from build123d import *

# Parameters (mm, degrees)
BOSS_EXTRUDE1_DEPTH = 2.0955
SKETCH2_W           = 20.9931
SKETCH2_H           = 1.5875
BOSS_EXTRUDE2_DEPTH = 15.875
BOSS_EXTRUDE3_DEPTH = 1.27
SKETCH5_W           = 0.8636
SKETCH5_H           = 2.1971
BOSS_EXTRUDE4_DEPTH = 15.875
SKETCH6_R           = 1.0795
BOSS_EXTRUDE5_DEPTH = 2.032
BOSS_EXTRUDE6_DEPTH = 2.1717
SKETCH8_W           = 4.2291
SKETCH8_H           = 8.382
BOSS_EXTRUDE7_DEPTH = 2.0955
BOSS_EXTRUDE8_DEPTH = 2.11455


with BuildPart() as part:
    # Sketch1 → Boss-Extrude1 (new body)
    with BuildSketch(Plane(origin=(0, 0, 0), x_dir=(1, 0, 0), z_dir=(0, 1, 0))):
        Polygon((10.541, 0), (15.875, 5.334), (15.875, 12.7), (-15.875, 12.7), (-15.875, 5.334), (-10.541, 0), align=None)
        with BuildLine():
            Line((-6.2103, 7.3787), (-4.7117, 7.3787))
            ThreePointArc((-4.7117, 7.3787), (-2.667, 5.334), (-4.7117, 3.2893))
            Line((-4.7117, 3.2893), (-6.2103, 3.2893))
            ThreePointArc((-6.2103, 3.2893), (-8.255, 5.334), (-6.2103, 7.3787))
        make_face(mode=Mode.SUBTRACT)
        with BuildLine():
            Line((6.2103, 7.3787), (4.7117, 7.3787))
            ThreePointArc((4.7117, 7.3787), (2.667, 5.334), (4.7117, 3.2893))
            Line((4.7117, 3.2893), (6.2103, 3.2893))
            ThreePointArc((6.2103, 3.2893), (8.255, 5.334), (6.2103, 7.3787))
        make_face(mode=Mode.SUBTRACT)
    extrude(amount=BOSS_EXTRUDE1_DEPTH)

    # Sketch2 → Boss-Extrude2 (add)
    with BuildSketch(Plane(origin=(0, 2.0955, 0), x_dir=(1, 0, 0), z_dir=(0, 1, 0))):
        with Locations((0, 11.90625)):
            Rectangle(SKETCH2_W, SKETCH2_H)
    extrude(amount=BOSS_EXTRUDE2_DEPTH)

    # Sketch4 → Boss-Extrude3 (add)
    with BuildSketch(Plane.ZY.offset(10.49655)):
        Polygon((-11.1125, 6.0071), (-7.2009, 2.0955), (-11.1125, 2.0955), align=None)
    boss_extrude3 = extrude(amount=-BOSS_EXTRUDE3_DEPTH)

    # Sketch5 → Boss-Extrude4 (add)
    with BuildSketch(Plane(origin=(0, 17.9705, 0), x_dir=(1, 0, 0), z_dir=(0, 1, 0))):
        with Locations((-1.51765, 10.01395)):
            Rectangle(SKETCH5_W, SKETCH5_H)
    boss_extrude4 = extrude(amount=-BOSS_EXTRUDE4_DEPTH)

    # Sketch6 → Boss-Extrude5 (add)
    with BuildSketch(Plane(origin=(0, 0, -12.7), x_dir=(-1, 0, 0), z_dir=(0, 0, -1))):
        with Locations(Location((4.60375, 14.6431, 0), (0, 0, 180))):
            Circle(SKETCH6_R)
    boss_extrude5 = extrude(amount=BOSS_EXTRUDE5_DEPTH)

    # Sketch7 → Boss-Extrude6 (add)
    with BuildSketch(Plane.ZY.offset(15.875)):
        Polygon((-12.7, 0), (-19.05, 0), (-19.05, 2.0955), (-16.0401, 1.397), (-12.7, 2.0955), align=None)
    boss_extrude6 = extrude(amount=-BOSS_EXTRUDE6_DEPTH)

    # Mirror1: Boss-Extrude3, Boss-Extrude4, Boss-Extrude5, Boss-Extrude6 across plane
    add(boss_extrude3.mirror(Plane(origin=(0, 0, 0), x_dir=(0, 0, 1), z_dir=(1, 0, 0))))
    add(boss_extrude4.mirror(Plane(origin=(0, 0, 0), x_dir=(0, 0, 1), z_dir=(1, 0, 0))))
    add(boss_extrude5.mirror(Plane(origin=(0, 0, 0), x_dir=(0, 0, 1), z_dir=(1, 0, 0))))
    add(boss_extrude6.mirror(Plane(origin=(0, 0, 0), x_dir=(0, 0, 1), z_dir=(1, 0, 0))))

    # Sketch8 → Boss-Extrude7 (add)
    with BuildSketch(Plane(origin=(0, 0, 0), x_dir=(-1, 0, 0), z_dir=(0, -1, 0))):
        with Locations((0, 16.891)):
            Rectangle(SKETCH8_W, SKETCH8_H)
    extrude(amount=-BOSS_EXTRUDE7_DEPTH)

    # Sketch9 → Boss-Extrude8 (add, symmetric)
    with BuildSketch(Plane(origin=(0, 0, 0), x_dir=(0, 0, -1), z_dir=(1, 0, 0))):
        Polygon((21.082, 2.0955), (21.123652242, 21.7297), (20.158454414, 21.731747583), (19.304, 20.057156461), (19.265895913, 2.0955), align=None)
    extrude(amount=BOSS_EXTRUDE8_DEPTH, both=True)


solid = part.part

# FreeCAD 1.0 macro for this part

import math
import FreeCAD as App
import Part
import Sketcher

V = App.Vector
Q = App.Units.Quantity

doc = App.newDocument("Part")
body = doc.addObject("PartDesign::Body", "Body")

# Sketch on XZ plane
sketch1 = body.newObject("Sketcher::SketchObject", "Sketch")
sketch1.AttachmentSupport = (doc.getObject("XZ_Plane"), [""])
sketch1.MapMode = "FlatFace"
sketch1.addGeometry(Part.LineSegment(V(10.5, 0, 0), V(15.9, -5.3, 0)), False)
sketch1.addGeometry(Part.LineSegment(V(15.9, -5.3, 0), V(15.9, -12.7, 0)), False)
sketch1.addGeometry(Part.LineSegment(V(15.9, -12.7, 0), V(-15.9, -12.7, 0)), False)
sketch1.addGeometry(Part.LineSegment(V(-15.9, -12.7, 0), V(-15.9, -5.3, 0)), False)
sketch1.addGeometry(Part.LineSegment(V(-15.9, -5.3, 0), V(-10.5, 0, 0)), False)
sketch1.addGeometry(Part.LineSegment(V(-10.5, 0, 0), V(10.5, 0, 0)), False)
sketch1.addGeometry(Part.ArcOfCircle(Part.Circle(V(-6.2, -5.3, 0), V(0, 0, 1), 2), math.radians(90), math.radians(270)), False)
sketch1.addGeometry(Part.LineSegment(V(-6.2, -7.4, 0), V(-4.7, -7.4, 0)), False)
sketch1.addGeometry(Part.ArcOfCircle(Part.Circle(V(-4.7, -5.3, 0), V(0, 0, 1), 2), math.radians(-90), math.radians(90)), False)
sketch1.addGeometry(Part.LineSegment(V(-4.7, -3.3, 0), V(-6.2, -3.3, 0)), False)
sketch1.addGeometry(Part.LineSegment(V(4.7, -7.4, 0), V(6.2, -7.4, 0)), False)
sketch1.addGeometry(Part.ArcOfCircle(Part.Circle(V(6.2, -5.3, 0), V(0, 0, 1), 2), math.radians(-90), math.radians(90)), False)
sketch1.addGeometry(Part.LineSegment(V(6.2, -3.3, 0), V(4.7, -3.3, 0)), False)
sketch1.addGeometry(Part.ArcOfCircle(Part.Circle(V(4.7, -5.3, 0), V(0, 0, 1), 2), math.radians(90), math.radians(270)), False)
sketch1.addConstraint(Sketcher.Constraint("Coincident", 0, 2, 1, 1))
sketch1.addConstraint(Sketcher.Constraint("Coincident", 1, 2, 2, 1))
sketch1.addConstraint(Sketcher.Constraint("Coincident", 2, 2, 3, 1))
sketch1.addConstraint(Sketcher.Constraint("Coincident", 3, 2, 4, 1))
sketch1.addConstraint(Sketcher.Constraint("Coincident", 4, 2, 5, 1))
sketch1.addConstraint(Sketcher.Constraint("Coincident", 5, 2, 0, 1))
sketch1.addConstraint(Sketcher.Constraint("Tangent", 6, 2, 7, 1))
sketch1.addConstraint(Sketcher.Constraint("Tangent", 7, 2, 8, 1))
sketch1.addConstraint(Sketcher.Constraint("Tangent", 8, 2, 9, 1))
sketch1.addConstraint(Sketcher.Constraint("Tangent", 9, 2, 6, 1))
sketch1.addConstraint(Sketcher.Constraint("Tangent", 10, 2, 11, 1))
sketch1.addConstraint(Sketcher.Constraint("Tangent", 11, 2, 12, 1))
sketch1.addConstraint(Sketcher.Constraint("Tangent", 12, 2, 13, 1))
sketch1.addConstraint(Sketcher.Constraint("Tangent", 13, 2, 10, 1))
sketch1.addConstraint(Sketcher.Constraint("Vertical", 1))
sketch1.addConstraint(Sketcher.Constraint("Horizontal", 2))
sketch1.addConstraint(Sketcher.Constraint("Vertical", 3))
sketch1.addConstraint(Sketcher.Constraint("Horizontal", 5))
sketch1.addConstraint(Sketcher.Constraint("Horizontal", 7))
sketch1.addConstraint(Sketcher.Constraint("Horizontal", 9))
sketch1.addConstraint(Sketcher.Constraint("Horizontal", 10))
sketch1.addConstraint(Sketcher.Constraint("Horizontal", 12))
sketch1.addConstraint(Sketcher.Constraint("Equal", 8, 11))
sketch1.addConstraint(Sketcher.Constraint("Symmetric", 4, 2, 5, 2, -1, 1))
sketch1.addConstraint(Sketcher.Constraint("Symmetric", 6, 3, 11, 3, -2))
sketch1.addConstraint(Sketcher.Constraint("Symmetric", 0, 2, 3, 2, -2))
sketch1.addConstraint(Sketcher.Constraint("Perpendicular", 0, 4))
sketch1.addConstraint(Sketcher.Constraint("Horizontal", 13, 3, 0, 2))
sketch1.addConstraint(Sketcher.Constraint("Equal", 9, 10))
sketch1.addConstraint(Sketcher.Constraint("DistanceX", 2, 2, 2, 1, Q("1.25 in")))
sketch1.addConstraint(Sketcher.Constraint("DistanceX", 5, 1, 5, 2, Q("0.83 in")))
sketch1.addConstraint(Sketcher.Constraint("DistanceY", 1, 2, 1, 1, Q("0.29 in")))
sketch1.addConstraint(Sketcher.Constraint("Radius", 6, Q("0.0805 in")))
sketch1.addConstraint(Sketcher.Constraint("DistanceX", 7, 1, 7, 2, Q("0.059 in")))
sketch1.addConstraint(Sketcher.Constraint("DistanceX", 8, 3, 11, 3, Q("0.43 in")))
pad1 = body.newObject("PartDesign::Pad", "Pad")
pad1.Profile = sketch1
pad1.Length = Q("0.0825 in")
pad1.Reversed = True

# Sketch on XZ plane
sketch2 = body.newObject("Sketcher::SketchObject", "Sketch001")
sketch2.AttachmentSupport = (doc.getObject("XZ_Plane"), [""])
sketch2.MapMode = "FlatFace"
sketch2.AttachmentOffset = App.Placement(V(0, 0, -0.0825 * 25.4), App.Rotation())
sketch2.addGeometry(Part.LineSegment(V(-10.5, -12.7, 0), V(-10.5, -11.1, 0)), False)
sketch2.addGeometry(Part.LineSegment(V(-10.5, -11.1, 0), V(10.5, -11.1, 0)), False)
sketch2.addGeometry(Part.LineSegment(V(10.5, -11.1, 0), V(10.5, -12.7, 0)), False)
sketch2.addGeometry(Part.LineSegment(V(10.5, -12.7, 0), V(-10.5, -12.7, 0)), False)
sketch2.addConstraint(Sketcher.Constraint("Coincident", 0, 2, 1, 1))
sketch2.addConstraint(Sketcher.Constraint("Coincident", 1, 2, 2, 1))
sketch2.addConstraint(Sketcher.Constraint("Coincident", 2, 2, 3, 1))
sketch2.addConstraint(Sketcher.Constraint("Coincident", 3, 2, 0, 1))
sketch2.addConstraint(Sketcher.Constraint("Vertical", 0))
sketch2.addConstraint(Sketcher.Constraint("Horizontal", 1))
sketch2.addConstraint(Sketcher.Constraint("Vertical", 2))
sketch2.addConstraint(Sketcher.Constraint("Horizontal", 3))
sketch2.addConstraint(Sketcher.Constraint("DistanceY", 2, 2, -1, 1, Q("0.5 in")))
sketch2.addConstraint(Sketcher.Constraint("DistanceY", 0, 1, 0, 2, Q("0.0625 in")))
sketch2.addConstraint(Sketcher.Constraint("DistanceX", 1, 1, 1, 2, Q("0.8265 in")))
sketch2.addConstraint(Sketcher.Constraint("DistanceX", 0, 2, -1, 1, Q("10.49655 mm")))
pad2 = body.newObject("PartDesign::Pad", "Pad001")
pad2.Profile = sketch2
pad2.Length = Q("0.625 in")
pad2.Reversed = True

# Sketch on YZ plane
sketch3 = body.newObject("Sketcher::SketchObject", "Sketch002")
sketch3.AttachmentSupport = (doc.getObject("YZ_Plane"), [""])
sketch3.MapMode = "FlatFace"
sketch3.AttachmentOffset = App.Placement(V(0, 0, -10.49655), App.Rotation())
sketch3.addGeometry(Part.LineSegment(V(2.1, -7.2, 0), V(6, -11.1, 0)), False)
sketch3.addGeometry(Part.LineSegment(V(6, -11.1, 0), V(2.1, -11.1, 0)), False)
sketch3.addGeometry(Part.LineSegment(V(2.1, -11.1, 0), V(2.1, -7.2, 0)), False)
sketch3.addConstraint(Sketcher.Constraint("Coincident", 0, 2, 1, 1))
sketch3.addConstraint(Sketcher.Constraint("Coincident", 1, 2, 2, 1))
sketch3.addConstraint(Sketcher.Constraint("Coincident", 2, 2, 0, 1))
sketch3.addConstraint(Sketcher.Constraint("Horizontal", 1))
sketch3.addConstraint(Sketcher.Constraint("Vertical", 2))
sketch3.addConstraint(Sketcher.Constraint("Equal", 1, 2))
sketch3.addConstraint(Sketcher.Constraint("DistanceX", 1, 2, 1, 1, Q("0.154 in")))
sketch3.addConstraint(Sketcher.Constraint("DistanceY", 0, 2, -1, 1, Q("0.4375 in")))
sketch3.addConstraint(Sketcher.Constraint("DistanceX", -1, 1, 0, 2, Q("0.2365 in")))
pad3 = body.newObject("PartDesign::Pad", "Pad002")
pad3.Profile = sketch3
pad3.Length = Q("0.05 in")

# Sketch on XZ plane
sketch4 = body.newObject("Sketcher::SketchObject", "Sketch003")
sketch4.AttachmentSupport = (doc.getObject("XZ_Plane"), [""])
sketch4.MapMode = "FlatFace"
sketch4.AttachmentOffset = App.Placement(V(0, 0, -0.7075 * 25.4), App.Rotation())
sketch4.addGeometry(Part.LineSegment(V(-1.9, -11.1, 0), V(-1.9, -8.9, 0)), False)
sketch4.addGeometry(Part.LineSegment(V(-1.9, -8.9, 0), V(-1.1, -8.9, 0)), False)
sketch4.addGeometry(Part.LineSegment(V(-1.1, -8.9, 0), V(-1.1, -11.1, 0)), False)
sketch4.addGeometry(Part.LineSegment(V(-1.1, -11.1, 0), V(-1.9, -11.1, 0)), False)
sketch4.addConstraint(Sketcher.Constraint("Coincident", 0, 2, 1, 1))
sketch4.addConstraint(Sketcher.Constraint("Coincident", 1, 2, 2, 1))
sketch4.addConstraint(Sketcher.Constraint("Coincident", 2, 2, 3, 1))
sketch4.addConstraint(Sketcher.Constraint("Coincident", 3, 2, 0, 1))
sketch4.addConstraint(Sketcher.Constraint("Vertical", 0))
sketch4.addConstraint(Sketcher.Constraint("Horizontal", 1))
sketch4.addConstraint(Sketcher.Constraint("Vertical", 2))
sketch4.addConstraint(Sketcher.Constraint("Horizontal", 3))
sketch4.addConstraint(Sketcher.Constraint("DistanceX", 1, 1, 1, 2, Q("0.034 in")))
sketch4.addConstraint(Sketcher.Constraint("DistanceY", 0, 1, 0, 2, Q("0.0865 in")))
sketch4.addConstraint(Sketcher.Constraint("DistanceY", 0, 2, -1, 1, Q("0.351 in")))
sketch4.addConstraint(Sketcher.Constraint("DistanceX", 0, 2, -1, 1, Q("1.94945 mm")))
pad4 = body.newObject("PartDesign::Pad", "Pad003")
pad4.Profile = sketch4
pad4.Length = Q("0.625 in")

# Sketch on XY plane
sketch5 = body.newObject("Sketcher::SketchObject", "Sketch004")
sketch5.AttachmentSupport = (doc.getObject("XY_Plane"), [""])
sketch5.MapMode = "FlatFace"
sketch5.AttachmentOffset = App.Placement(V(0, 0, -0.5 * 25.4), App.Rotation())
sketch5.addGeometry(Part.Circle(V(-4.6, 14.6, 0), V(0, 0, 1), 1.1), False)
sketch5.addConstraint(Sketcher.Constraint("Diameter", 0, Q("0.085 in")))
sketch5.addConstraint(Sketcher.Constraint("DistanceY", -1, 1, 0, 3, Q("0.5765 in")))
sketch5.addConstraint(Sketcher.Constraint("DistanceX", 0, 3, -1, 1, Q("4.60375 mm")))
pad5 = body.newObject("PartDesign::Pad", "Pad004")
pad5.Profile = sketch5
pad5.Length = Q("0.08 in")
pad5.Reversed = True

# Sketch on YZ plane
sketch6 = body.newObject("Sketcher::SketchObject", "Sketch005")
sketch6.AttachmentSupport = (doc.getObject("YZ_Plane"), [""])
sketch6.MapMode = "FlatFace"
sketch6.AttachmentOffset = App.Placement(V(0, 0, -0.625 * 25.4), App.Rotation())
sketch6.addGeometry(Part.LineSegment(V(0, -19.1, 0), V(0, -12.7, 0)), False)
sketch6.addGeometry(Part.LineSegment(V(0, -12.7, 0), V(2.1, -12.7, 0)), False)
sketch6.addGeometry(Part.LineSegment(V(2.1, -12.7, 0), V(1.4, -16, 0)), False)
sketch6.addGeometry(Part.LineSegment(V(1.4, -16, 0), V(2.1, -19.1, 0)), False)
sketch6.addGeometry(Part.LineSegment(V(2.1, -19.1, 0), V(0, -19.1, 0)), False)
sketch6.addConstraint(Sketcher.Constraint("Coincident", 0, 2, 1, 1))
sketch6.addConstraint(Sketcher.Constraint("Coincident", 1, 2, 2, 1))
sketch6.addConstraint(Sketcher.Constraint("Coincident", 2, 2, 3, 1))
sketch6.addConstraint(Sketcher.Constraint("Coincident", 3, 2, 4, 1))
sketch6.addConstraint(Sketcher.Constraint("Coincident", 4, 2, 0, 1))
sketch6.addConstraint(Sketcher.Constraint("Vertical", 0))
sketch6.addConstraint(Sketcher.Constraint("Horizontal", 1))
sketch6.addConstraint(Sketcher.Constraint("Horizontal", 4))
sketch6.addConstraint(Sketcher.Constraint("PointOnObject", 0, 2, -2))
sketch6.addConstraint(Sketcher.Constraint("Vertical", 1, 2, 3, 2))
sketch6.addConstraint(Sketcher.Constraint("DistanceY", 0, 1, 0, 2, Q("0.25 in")))
sketch6.addConstraint(Sketcher.Constraint("DistanceY", 0, 2, -1, 1, Q("0.5 in")))
sketch6.addConstraint(Sketcher.Constraint("DistanceX", 1, 1, 1, 2, Q("0.0825 in")))
sketch6.addConstraint(Sketcher.Constraint("DistanceX", -1, 1, 2, 2, Q("0.055 in")))
sketch6.addConstraint(Sketcher.Constraint("DistanceY", 2, 2, -1, 1, Q("0.6315 in")))
pad6 = body.newObject("PartDesign::Pad", "Pad005")
pad6.Profile = sketch6
pad6.Length = Q("0.0855 in")
doc.recompute()

mirrored = body.newObject("PartDesign::Mirrored", "Mirrored")
mirrored.Originals = [pad3, pad4, pad5, pad6]
mirrored.MirrorPlane = (doc.getObject("YZ_Plane"), [""])
body.Tip = mirrored

# Sketch on XZ plane
sketch7 = body.newObject("Sketcher::SketchObject", "Sketch006")
sketch7.AttachmentSupport = (doc.getObject("XZ_Plane"), [""])
sketch7.MapMode = "FlatFace"
sketch7.addGeometry(Part.LineSegment(V(2.1, -21.1, 0), V(2.1, -12.7, 0)), False)
sketch7.addGeometry(Part.LineSegment(V(2.1, -12.7, 0), V(-2.1, -12.7, 0)), False)
sketch7.addGeometry(Part.LineSegment(V(-2.1, -12.7, 0), V(-2.1, -21.1, 0)), False)
sketch7.addGeometry(Part.LineSegment(V(-2.1, -21.1, 0), V(2.1, -21.1, 0)), False)
sketch7.addConstraint(Sketcher.Constraint("Coincident", 0, 2, 1, 1))
sketch7.addConstraint(Sketcher.Constraint("Coincident", 1, 2, 2, 1))
sketch7.addConstraint(Sketcher.Constraint("Coincident", 2, 2, 3, 1))
sketch7.addConstraint(Sketcher.Constraint("Coincident", 3, 2, 0, 1))
sketch7.addConstraint(Sketcher.Constraint("Vertical", 0))
sketch7.addConstraint(Sketcher.Constraint("Horizontal", 1))
sketch7.addConstraint(Sketcher.Constraint("Vertical", 2))
sketch7.addConstraint(Sketcher.Constraint("Horizontal", 3))
sketch7.addConstraint(Sketcher.Constraint("DistanceY", 0, 1, 0, 2, Q("0.33 in")))
sketch7.addConstraint(Sketcher.Constraint("DistanceY", 0, 2, -1, 1, Q("0.5 in")))
sketch7.addConstraint(Sketcher.Constraint("DistanceX", 1, 2, 1, 1, Q("0.1665 in")))
sketch7.addConstraint(Sketcher.Constraint("DistanceX", -1, 1, 0, 2, Q("2.11455 mm")))
pad7 = body.newObject("PartDesign::Pad", "Pad006")
pad7.Profile = sketch7
pad7.Length = Q("0.0825 in")
pad7.Reversed = True

# Sketch on YZ plane
sketch8 = body.newObject("Sketcher::SketchObject", "Sketch007")
sketch8.AttachmentSupport = (doc.getObject("YZ_Plane"), [""])
sketch8.MapMode = "FlatFace"
sketch8.addGeometry(Part.LineSegment(V(2.1, -21.1, 0), V(21.7, -21.1, 0)), False)
sketch8.addGeometry(Part.LineSegment(V(21.7, -21.1, 0), V(21.7, -20.2, 0)), False)
sketch8.addGeometry(Part.LineSegment(V(21.7, -20.2, 0), V(20.1, -19.3, 0)), False)
sketch8.addGeometry(Part.LineSegment(V(20.1, -19.3, 0), V(2.1, -19.3, 0)), False)
sketch8.addGeometry(Part.LineSegment(V(2.1, -19.3, 0), V(2.1, -21.1, 0)), False)
sketch8.addConstraint(Sketcher.Constraint("Coincident", 0, 2, 1, 1))
sketch8.addConstraint(Sketcher.Constraint("Coincident", 1, 2, 2, 1))
sketch8.addConstraint(Sketcher.Constraint("Coincident", 2, 2, 3, 1))
sketch8.addConstraint(Sketcher.Constraint("Coincident", 3, 2, 4, 1))
sketch8.addConstraint(Sketcher.Constraint("Coincident", 4, 2, 0, 1))
sketch8.addConstraint(Sketcher.Constraint("Vertical", 4))
sketch8.addConstraint(Sketcher.Constraint("Perpendicular", 0, 1))
sketch8.addConstraint(Sketcher.Constraint("Perpendicular", 1, 3))
sketch8.addConstraint(Sketcher.Constraint("DistanceY", 2, 2, -1, 1, Q("0.76 in")))
sketch8.addConstraint(Sketcher.Constraint("DistanceY", 4, 2, -1, 1, Q("0.83 in")))
sketch8.addConstraint(Sketcher.Constraint("Distance", 1, Q("0.038 in")))
sketch8.addConstraint(Sketcher.Constraint("DistanceY", 4, 2, 4, 1, Q("0.0715002 in")))
sketch8.addConstraint(Sketcher.Constraint("DistanceX", 3, 2, 0, 2, Q("0.773 in")))
sketch8.addConstraint(Sketcher.Constraint("DistanceX", -1, 1, 0, 2, Q("0.8555 in")))
sketch8.addConstraint(Sketcher.Constraint("DistanceX", 2, 2, 1, 2, Q("1.674591 mm")))
pad8 = body.newObject("PartDesign::Pad", "Pad007")
pad8.Profile = sketch8
pad8.Length = Q("0.1665 in")
pad8.Midplane = True

doc.recompute()
